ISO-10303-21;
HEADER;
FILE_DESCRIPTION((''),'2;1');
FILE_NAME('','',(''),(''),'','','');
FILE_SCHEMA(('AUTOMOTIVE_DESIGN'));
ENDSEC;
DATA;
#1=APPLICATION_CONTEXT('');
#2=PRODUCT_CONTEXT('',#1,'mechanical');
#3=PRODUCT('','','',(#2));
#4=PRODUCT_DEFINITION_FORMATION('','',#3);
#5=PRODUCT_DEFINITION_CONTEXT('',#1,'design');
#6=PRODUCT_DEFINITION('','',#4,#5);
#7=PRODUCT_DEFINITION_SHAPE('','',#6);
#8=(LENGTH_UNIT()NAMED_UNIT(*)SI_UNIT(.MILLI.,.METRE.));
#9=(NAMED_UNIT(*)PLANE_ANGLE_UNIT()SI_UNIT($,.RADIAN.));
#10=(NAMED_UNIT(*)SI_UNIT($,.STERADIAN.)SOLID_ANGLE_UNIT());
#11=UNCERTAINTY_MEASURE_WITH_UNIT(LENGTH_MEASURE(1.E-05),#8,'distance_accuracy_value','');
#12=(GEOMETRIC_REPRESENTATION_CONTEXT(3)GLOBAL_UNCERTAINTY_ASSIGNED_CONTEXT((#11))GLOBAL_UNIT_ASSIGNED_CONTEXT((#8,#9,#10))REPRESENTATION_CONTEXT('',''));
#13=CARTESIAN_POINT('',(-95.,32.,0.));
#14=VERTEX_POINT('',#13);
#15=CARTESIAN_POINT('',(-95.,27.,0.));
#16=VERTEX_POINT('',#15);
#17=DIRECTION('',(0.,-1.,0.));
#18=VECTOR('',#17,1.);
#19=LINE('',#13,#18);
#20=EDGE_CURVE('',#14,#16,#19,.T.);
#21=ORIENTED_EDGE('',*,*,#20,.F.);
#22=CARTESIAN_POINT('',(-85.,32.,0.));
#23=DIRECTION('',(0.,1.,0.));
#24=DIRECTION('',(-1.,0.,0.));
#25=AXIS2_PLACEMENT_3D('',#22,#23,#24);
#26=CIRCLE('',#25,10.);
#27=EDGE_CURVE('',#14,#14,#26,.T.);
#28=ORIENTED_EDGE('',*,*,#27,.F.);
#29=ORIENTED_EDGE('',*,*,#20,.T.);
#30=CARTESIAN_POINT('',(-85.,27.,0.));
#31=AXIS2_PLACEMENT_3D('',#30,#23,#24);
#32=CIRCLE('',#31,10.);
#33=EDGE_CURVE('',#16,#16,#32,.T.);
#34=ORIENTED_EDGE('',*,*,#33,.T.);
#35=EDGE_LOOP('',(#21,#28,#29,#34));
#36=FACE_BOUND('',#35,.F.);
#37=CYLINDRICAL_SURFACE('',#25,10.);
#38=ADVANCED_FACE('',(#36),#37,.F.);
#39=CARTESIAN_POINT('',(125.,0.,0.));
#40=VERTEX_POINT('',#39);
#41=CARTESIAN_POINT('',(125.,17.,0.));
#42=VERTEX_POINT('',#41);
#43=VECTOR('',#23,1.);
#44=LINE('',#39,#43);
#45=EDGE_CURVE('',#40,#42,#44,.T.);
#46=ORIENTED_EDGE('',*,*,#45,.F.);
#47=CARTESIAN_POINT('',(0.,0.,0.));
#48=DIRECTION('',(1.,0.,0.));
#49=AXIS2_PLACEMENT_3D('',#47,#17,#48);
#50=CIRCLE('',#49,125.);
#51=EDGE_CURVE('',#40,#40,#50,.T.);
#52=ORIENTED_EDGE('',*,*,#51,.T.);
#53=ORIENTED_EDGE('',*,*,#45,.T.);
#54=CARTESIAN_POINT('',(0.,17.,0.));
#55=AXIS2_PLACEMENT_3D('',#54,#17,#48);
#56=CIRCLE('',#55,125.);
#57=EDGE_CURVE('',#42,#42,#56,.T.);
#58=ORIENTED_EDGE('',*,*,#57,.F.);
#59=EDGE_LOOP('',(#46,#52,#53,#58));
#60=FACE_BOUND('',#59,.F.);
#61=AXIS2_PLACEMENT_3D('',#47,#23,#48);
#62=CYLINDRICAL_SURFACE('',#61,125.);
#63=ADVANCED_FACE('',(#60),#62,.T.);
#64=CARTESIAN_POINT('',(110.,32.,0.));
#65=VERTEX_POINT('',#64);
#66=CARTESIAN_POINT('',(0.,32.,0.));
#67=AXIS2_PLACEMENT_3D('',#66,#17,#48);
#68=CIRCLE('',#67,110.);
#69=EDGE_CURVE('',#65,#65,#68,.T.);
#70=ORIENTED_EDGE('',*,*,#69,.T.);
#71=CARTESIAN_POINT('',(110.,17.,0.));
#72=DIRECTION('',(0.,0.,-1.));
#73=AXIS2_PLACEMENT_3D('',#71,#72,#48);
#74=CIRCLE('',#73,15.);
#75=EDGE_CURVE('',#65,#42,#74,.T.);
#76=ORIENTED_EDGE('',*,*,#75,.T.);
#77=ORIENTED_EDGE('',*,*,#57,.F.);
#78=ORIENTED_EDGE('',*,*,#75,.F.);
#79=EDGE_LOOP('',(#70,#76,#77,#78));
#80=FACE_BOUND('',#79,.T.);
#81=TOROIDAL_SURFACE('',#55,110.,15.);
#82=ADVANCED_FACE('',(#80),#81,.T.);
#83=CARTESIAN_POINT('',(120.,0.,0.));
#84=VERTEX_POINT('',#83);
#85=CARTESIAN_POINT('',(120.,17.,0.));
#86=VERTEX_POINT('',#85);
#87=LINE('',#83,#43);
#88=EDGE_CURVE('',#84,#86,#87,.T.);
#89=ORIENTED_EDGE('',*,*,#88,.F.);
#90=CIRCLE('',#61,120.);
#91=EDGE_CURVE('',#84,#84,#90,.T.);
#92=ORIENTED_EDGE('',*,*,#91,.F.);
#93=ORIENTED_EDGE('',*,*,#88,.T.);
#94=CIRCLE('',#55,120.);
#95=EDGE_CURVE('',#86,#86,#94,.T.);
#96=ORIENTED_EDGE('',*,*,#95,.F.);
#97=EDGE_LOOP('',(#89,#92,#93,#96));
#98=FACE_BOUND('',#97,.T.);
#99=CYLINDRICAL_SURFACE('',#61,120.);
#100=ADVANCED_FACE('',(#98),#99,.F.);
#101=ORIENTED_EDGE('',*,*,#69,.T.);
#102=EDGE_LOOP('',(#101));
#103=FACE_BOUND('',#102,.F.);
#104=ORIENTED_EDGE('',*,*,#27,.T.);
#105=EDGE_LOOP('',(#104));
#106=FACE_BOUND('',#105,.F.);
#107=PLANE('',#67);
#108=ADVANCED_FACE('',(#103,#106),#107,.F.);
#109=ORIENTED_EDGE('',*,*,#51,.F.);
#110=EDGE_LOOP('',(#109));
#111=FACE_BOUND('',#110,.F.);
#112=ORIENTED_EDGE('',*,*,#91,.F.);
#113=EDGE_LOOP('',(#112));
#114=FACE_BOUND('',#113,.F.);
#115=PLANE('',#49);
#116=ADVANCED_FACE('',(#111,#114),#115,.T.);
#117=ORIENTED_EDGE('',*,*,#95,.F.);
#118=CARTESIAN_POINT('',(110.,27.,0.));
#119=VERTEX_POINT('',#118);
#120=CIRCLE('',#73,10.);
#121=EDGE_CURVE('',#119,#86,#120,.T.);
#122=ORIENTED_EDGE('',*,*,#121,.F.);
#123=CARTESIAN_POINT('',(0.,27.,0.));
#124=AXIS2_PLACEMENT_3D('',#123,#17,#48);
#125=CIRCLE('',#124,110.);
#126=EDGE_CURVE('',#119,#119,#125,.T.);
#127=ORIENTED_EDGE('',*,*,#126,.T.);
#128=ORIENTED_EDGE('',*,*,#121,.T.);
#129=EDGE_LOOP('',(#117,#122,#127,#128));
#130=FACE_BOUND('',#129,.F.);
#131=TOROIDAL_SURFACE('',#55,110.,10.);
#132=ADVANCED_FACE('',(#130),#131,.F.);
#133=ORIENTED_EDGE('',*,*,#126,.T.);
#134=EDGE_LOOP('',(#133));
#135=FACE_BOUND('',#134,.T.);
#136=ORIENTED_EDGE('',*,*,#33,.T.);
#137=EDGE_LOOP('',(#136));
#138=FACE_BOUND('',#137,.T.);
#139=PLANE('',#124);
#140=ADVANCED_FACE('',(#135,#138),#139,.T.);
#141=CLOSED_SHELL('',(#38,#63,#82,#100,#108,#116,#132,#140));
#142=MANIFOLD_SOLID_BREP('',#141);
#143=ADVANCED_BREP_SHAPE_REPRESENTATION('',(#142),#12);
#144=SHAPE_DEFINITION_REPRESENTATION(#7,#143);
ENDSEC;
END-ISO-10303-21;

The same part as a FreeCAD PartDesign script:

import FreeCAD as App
import Part
import Sketcher
from FreeCAD import Vector
Q = App.Units.Quantity


def edges_at(feature, points):
    """Names of the edges that pass closest to the given points."""
    edges = feature.Shape.Edges
    near = lambda p: min(range(len(edges)), key=lambda i: edges[i].distToShape(Part.Vertex(*p))[0])
    return sorted({f"Edge{near(p) + 1}" for p in points})


def faces_at(feature, points):
    """Names of the faces that lie closest to the given points."""
    faces = feature.Shape.Faces
    near = lambda p: min(range(len(faces)), key=lambda i: faces[i].distToShape(Part.Vertex(*p))[0])
    return sorted({f"Face{near(p) + 1}" for p in points})


def add_polygon(sketch, points):
    """Adds a closed chain of lines whose ends are joined by coincident constraints."""
    first, n = sketch.GeometryCount, len(points)
    for a, b in zip(points, points[1:] + points[:1]):
        sketch.addGeometry(Part.LineSegment(App.Vector(*a, 0), App.Vector(*b, 0)), False)
    for i in range(n):
        sketch.addConstraint(Sketcher.Constraint("Coincident", first + i, 2, first + (i + 1) % n, 1))

doc = App.newDocument("Part")
body = doc.addObject("PartDesign::Body", "Body")

# Sketch on XY plane
sketch1 = body.newObject("Sketcher::SketchObject", "Sketch")
sketch1.AttachmentSupport = (doc.getObject("XY_Plane"), [""])
sketch1.MapMode = "FlatFace"
add_polygon(sketch1, [(0, 32), (0, 0), (125, 0), (125, 32)])  # lines 0-3
sketch1.addConstraint([
    Sketcher.Constraint("Vertical", 0),
    Sketcher.Constraint("Horizontal", 1),
    Sketcher.Constraint("Vertical", 2),
    Sketcher.Constraint("Horizontal", 3),
    Sketcher.Constraint("Coincident", 0, 2, -1, 1),
    Sketcher.Constraint("DistanceX", 1, 1, 1, 2, Q("125 mm")),
    Sketcher.Constraint("DistanceY", 0, 2, 0, 1, Q("32 mm")),
])
revolution = body.newObject("PartDesign::Revolution", "Revolution")
revolution.Profile = sketch1
revolution.ReferenceAxis = (sketch1, ["V_Axis"])
revolution.Angle = 360
doc.recompute()

fillet = body.newObject("PartDesign::Fillet", "Fillet")
fillet.Base = (revolution, edges_at(revolution, [(-116.541, 32, -45.202)]))
fillet.Radius = 15
doc.recompute()

thickness = body.newObject("PartDesign::Thickness", "Thickness")
thickness.Base = (fillet, faces_at(fillet, [(-15.223, 0, 33.382)]))
thickness.Value = 5
thickness.Reversed = True
thickness.Join = "Intersection"

# Sketch on XZ plane
sketch2 = body.newObject("Sketcher::SketchObject", "Sketch001")
sketch2.AttachmentSupport = (doc.getObject("XZ_Plane"), [""])
sketch2.MapMode = "FlatFace"
sketch2.AttachmentOffset = App.Placement(Vector(0, 0, -32), App.Rotation())
sketch2.addGeometry(Part.Circle(Vector(-85, 0, 0), Vector(0, 0, 1), 10), False)
sketch2.addConstraint([
    Sketcher.Constraint("PointOnObject", 0, 3, -1),
    Sketcher.Constraint("Diameter", 0, Q("20 mm")),
    Sketcher.Constraint("DistanceX", 0, 3, -1, 1, Q("85 mm")),
])
pocket1 = body.newObject("PartDesign::Pocket", "Pocket")
pocket1.Profile = sketch2
pocket1.Length = 10
pocket1.Reversed = True

doc.recompute()
